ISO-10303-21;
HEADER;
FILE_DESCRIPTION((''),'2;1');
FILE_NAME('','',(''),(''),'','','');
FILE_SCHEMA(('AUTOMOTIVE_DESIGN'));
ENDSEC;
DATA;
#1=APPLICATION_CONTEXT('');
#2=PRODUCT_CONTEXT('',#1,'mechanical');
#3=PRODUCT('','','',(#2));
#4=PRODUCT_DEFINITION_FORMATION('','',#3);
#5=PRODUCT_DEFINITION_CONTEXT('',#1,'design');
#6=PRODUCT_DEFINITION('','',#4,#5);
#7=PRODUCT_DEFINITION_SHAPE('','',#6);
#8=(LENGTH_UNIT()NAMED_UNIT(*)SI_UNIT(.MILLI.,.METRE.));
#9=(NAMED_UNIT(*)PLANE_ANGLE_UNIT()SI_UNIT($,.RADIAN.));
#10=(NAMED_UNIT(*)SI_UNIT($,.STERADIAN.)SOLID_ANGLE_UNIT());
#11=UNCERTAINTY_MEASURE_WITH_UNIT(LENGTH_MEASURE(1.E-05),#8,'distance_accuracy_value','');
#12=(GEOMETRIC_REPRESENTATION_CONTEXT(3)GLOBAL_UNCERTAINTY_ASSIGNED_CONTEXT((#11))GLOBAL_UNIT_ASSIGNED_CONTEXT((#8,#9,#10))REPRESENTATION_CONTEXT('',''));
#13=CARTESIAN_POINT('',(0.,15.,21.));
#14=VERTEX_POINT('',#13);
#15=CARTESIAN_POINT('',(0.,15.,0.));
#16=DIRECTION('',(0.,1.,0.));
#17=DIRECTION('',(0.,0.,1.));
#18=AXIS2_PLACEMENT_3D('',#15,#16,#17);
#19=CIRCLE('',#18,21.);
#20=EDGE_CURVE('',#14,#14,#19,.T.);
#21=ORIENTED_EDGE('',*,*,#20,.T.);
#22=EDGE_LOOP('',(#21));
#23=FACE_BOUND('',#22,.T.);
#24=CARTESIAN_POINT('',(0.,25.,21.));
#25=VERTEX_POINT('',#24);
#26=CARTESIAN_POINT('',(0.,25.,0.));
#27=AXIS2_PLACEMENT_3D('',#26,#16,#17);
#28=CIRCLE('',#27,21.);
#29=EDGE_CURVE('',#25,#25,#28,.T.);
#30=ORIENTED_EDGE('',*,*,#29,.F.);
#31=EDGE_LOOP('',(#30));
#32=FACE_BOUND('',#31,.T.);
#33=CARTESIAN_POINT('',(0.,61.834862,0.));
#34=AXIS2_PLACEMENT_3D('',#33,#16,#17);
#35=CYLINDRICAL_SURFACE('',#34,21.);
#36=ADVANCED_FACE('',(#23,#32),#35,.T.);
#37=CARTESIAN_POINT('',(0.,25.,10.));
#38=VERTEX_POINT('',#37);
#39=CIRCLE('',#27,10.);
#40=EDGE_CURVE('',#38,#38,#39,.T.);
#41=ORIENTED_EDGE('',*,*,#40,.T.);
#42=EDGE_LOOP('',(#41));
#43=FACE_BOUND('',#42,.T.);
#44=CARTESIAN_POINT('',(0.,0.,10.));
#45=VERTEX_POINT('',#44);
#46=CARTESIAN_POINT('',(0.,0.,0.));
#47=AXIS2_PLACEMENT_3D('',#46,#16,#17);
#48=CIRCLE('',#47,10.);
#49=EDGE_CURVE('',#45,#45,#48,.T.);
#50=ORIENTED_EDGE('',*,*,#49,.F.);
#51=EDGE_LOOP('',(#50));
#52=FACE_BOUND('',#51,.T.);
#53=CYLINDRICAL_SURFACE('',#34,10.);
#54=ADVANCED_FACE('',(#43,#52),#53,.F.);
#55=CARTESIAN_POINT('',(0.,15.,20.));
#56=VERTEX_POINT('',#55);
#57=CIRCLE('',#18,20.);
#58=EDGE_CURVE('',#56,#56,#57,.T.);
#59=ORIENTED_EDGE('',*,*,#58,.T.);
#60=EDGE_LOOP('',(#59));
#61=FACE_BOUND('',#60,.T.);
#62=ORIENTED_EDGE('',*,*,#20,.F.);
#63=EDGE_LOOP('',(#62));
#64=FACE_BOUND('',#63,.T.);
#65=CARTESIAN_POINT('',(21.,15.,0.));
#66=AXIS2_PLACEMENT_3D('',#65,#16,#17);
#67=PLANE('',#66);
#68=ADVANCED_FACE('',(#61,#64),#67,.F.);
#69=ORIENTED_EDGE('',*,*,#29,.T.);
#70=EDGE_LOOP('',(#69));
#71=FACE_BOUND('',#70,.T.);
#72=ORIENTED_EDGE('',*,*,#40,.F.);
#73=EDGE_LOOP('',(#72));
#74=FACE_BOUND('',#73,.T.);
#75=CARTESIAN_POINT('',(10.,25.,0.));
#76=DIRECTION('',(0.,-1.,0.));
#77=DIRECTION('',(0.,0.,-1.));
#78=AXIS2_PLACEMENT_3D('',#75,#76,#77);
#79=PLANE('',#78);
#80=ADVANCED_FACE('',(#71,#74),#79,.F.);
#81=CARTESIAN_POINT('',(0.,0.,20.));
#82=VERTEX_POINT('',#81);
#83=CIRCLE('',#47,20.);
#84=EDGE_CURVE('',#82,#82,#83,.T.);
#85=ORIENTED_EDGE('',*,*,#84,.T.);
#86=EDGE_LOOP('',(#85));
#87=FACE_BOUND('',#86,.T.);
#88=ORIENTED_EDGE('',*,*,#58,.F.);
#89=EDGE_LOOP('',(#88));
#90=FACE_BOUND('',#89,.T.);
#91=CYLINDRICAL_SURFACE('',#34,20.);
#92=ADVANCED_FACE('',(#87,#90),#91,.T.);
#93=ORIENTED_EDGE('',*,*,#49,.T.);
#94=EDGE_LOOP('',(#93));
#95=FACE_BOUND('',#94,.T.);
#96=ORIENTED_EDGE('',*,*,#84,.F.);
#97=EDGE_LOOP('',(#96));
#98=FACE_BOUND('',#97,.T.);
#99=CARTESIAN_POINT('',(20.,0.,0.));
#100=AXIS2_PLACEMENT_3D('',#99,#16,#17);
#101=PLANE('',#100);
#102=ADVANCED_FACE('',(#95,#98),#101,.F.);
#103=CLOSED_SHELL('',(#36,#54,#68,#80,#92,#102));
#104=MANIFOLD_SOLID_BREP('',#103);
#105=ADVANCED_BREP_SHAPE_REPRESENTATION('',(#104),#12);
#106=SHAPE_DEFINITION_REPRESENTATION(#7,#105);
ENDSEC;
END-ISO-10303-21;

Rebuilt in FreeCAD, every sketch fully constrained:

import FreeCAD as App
import Part
import Sketcher

V = App.Vector
Q = App.Units.Quantity


def add_polygon(sketch, points):
    """Adds a closed chain of lines whose ends are joined by coincident constraints."""
    first, n = sketch.GeometryCount, len(points)
    for a, b in zip(points, points[1:] + points[:1]):
        sketch.addGeometry(Part.LineSegment(App.Vector(*a, 0), App.Vector(*b, 0)), False)
    for i in range(n):
        sketch.addConstraint(Sketcher.Constraint("Coincident", first + i, 2, first + (i + 1) % n, 1))

doc = App.newDocument("Part")
body = doc.addObject("PartDesign::Body", "Body")

# Sketch on XY plane
sketch1 = doc.addObject("Sketcher::SketchObject", "Sketch")
body.addObject(sketch1)
sketch1.AttachmentSupport = (doc.XY_Plane, [""])
sketch1.MapMode = "FlatFace"
add_polygon(sketch1, [(10, 25), (10, 0), (20, 0), (20, 15), (21, 15), (21, 25)])  # lines 0-5
sketch1.addConstraint(Sketcher.Constraint("Vertical", 0))
sketch1.addConstraint(Sketcher.Constraint("Horizontal", 1))
sketch1.addConstraint(Sketcher.Constraint("Vertical", 2))
sketch1.addConstraint(Sketcher.Constraint("Horizontal", 3))
sketch1.addConstraint(Sketcher.Constraint("Vertical", 4))
sketch1.addConstraint(Sketcher.Constraint("Horizontal", 5))
sketch1.addConstraint(Sketcher.Constraint("PointOnObject", 0, 2, -1))
sketch1.addConstraint(Sketcher.Constraint("Equal", 1, 4))
sketch1.addConstraint(Sketcher.Constraint("DistanceX", 1, 1, 1, 2, Q("10 mm")))
sketch1.addConstraint(Sketcher.Constraint("DistanceX", 3, 1, 3, 2, Q("1 mm")))
sketch1.addConstraint(Sketcher.Constraint("DistanceY", 0, 2, 0, 1, Q("25 mm")))
sketch1.addConstraint(Sketcher.Constraint("DistanceX", -1, 1, 0, 2, Q("10 mm")))
revolution = doc.addObject("PartDesign::Revolution", "Revolution")
body.addObject(revolution)
revolution.Profile = sketch1
revolution.ReferenceAxis = (sketch1, ["V_Axis"])
revolution.Angle = 360

doc.recompute()
